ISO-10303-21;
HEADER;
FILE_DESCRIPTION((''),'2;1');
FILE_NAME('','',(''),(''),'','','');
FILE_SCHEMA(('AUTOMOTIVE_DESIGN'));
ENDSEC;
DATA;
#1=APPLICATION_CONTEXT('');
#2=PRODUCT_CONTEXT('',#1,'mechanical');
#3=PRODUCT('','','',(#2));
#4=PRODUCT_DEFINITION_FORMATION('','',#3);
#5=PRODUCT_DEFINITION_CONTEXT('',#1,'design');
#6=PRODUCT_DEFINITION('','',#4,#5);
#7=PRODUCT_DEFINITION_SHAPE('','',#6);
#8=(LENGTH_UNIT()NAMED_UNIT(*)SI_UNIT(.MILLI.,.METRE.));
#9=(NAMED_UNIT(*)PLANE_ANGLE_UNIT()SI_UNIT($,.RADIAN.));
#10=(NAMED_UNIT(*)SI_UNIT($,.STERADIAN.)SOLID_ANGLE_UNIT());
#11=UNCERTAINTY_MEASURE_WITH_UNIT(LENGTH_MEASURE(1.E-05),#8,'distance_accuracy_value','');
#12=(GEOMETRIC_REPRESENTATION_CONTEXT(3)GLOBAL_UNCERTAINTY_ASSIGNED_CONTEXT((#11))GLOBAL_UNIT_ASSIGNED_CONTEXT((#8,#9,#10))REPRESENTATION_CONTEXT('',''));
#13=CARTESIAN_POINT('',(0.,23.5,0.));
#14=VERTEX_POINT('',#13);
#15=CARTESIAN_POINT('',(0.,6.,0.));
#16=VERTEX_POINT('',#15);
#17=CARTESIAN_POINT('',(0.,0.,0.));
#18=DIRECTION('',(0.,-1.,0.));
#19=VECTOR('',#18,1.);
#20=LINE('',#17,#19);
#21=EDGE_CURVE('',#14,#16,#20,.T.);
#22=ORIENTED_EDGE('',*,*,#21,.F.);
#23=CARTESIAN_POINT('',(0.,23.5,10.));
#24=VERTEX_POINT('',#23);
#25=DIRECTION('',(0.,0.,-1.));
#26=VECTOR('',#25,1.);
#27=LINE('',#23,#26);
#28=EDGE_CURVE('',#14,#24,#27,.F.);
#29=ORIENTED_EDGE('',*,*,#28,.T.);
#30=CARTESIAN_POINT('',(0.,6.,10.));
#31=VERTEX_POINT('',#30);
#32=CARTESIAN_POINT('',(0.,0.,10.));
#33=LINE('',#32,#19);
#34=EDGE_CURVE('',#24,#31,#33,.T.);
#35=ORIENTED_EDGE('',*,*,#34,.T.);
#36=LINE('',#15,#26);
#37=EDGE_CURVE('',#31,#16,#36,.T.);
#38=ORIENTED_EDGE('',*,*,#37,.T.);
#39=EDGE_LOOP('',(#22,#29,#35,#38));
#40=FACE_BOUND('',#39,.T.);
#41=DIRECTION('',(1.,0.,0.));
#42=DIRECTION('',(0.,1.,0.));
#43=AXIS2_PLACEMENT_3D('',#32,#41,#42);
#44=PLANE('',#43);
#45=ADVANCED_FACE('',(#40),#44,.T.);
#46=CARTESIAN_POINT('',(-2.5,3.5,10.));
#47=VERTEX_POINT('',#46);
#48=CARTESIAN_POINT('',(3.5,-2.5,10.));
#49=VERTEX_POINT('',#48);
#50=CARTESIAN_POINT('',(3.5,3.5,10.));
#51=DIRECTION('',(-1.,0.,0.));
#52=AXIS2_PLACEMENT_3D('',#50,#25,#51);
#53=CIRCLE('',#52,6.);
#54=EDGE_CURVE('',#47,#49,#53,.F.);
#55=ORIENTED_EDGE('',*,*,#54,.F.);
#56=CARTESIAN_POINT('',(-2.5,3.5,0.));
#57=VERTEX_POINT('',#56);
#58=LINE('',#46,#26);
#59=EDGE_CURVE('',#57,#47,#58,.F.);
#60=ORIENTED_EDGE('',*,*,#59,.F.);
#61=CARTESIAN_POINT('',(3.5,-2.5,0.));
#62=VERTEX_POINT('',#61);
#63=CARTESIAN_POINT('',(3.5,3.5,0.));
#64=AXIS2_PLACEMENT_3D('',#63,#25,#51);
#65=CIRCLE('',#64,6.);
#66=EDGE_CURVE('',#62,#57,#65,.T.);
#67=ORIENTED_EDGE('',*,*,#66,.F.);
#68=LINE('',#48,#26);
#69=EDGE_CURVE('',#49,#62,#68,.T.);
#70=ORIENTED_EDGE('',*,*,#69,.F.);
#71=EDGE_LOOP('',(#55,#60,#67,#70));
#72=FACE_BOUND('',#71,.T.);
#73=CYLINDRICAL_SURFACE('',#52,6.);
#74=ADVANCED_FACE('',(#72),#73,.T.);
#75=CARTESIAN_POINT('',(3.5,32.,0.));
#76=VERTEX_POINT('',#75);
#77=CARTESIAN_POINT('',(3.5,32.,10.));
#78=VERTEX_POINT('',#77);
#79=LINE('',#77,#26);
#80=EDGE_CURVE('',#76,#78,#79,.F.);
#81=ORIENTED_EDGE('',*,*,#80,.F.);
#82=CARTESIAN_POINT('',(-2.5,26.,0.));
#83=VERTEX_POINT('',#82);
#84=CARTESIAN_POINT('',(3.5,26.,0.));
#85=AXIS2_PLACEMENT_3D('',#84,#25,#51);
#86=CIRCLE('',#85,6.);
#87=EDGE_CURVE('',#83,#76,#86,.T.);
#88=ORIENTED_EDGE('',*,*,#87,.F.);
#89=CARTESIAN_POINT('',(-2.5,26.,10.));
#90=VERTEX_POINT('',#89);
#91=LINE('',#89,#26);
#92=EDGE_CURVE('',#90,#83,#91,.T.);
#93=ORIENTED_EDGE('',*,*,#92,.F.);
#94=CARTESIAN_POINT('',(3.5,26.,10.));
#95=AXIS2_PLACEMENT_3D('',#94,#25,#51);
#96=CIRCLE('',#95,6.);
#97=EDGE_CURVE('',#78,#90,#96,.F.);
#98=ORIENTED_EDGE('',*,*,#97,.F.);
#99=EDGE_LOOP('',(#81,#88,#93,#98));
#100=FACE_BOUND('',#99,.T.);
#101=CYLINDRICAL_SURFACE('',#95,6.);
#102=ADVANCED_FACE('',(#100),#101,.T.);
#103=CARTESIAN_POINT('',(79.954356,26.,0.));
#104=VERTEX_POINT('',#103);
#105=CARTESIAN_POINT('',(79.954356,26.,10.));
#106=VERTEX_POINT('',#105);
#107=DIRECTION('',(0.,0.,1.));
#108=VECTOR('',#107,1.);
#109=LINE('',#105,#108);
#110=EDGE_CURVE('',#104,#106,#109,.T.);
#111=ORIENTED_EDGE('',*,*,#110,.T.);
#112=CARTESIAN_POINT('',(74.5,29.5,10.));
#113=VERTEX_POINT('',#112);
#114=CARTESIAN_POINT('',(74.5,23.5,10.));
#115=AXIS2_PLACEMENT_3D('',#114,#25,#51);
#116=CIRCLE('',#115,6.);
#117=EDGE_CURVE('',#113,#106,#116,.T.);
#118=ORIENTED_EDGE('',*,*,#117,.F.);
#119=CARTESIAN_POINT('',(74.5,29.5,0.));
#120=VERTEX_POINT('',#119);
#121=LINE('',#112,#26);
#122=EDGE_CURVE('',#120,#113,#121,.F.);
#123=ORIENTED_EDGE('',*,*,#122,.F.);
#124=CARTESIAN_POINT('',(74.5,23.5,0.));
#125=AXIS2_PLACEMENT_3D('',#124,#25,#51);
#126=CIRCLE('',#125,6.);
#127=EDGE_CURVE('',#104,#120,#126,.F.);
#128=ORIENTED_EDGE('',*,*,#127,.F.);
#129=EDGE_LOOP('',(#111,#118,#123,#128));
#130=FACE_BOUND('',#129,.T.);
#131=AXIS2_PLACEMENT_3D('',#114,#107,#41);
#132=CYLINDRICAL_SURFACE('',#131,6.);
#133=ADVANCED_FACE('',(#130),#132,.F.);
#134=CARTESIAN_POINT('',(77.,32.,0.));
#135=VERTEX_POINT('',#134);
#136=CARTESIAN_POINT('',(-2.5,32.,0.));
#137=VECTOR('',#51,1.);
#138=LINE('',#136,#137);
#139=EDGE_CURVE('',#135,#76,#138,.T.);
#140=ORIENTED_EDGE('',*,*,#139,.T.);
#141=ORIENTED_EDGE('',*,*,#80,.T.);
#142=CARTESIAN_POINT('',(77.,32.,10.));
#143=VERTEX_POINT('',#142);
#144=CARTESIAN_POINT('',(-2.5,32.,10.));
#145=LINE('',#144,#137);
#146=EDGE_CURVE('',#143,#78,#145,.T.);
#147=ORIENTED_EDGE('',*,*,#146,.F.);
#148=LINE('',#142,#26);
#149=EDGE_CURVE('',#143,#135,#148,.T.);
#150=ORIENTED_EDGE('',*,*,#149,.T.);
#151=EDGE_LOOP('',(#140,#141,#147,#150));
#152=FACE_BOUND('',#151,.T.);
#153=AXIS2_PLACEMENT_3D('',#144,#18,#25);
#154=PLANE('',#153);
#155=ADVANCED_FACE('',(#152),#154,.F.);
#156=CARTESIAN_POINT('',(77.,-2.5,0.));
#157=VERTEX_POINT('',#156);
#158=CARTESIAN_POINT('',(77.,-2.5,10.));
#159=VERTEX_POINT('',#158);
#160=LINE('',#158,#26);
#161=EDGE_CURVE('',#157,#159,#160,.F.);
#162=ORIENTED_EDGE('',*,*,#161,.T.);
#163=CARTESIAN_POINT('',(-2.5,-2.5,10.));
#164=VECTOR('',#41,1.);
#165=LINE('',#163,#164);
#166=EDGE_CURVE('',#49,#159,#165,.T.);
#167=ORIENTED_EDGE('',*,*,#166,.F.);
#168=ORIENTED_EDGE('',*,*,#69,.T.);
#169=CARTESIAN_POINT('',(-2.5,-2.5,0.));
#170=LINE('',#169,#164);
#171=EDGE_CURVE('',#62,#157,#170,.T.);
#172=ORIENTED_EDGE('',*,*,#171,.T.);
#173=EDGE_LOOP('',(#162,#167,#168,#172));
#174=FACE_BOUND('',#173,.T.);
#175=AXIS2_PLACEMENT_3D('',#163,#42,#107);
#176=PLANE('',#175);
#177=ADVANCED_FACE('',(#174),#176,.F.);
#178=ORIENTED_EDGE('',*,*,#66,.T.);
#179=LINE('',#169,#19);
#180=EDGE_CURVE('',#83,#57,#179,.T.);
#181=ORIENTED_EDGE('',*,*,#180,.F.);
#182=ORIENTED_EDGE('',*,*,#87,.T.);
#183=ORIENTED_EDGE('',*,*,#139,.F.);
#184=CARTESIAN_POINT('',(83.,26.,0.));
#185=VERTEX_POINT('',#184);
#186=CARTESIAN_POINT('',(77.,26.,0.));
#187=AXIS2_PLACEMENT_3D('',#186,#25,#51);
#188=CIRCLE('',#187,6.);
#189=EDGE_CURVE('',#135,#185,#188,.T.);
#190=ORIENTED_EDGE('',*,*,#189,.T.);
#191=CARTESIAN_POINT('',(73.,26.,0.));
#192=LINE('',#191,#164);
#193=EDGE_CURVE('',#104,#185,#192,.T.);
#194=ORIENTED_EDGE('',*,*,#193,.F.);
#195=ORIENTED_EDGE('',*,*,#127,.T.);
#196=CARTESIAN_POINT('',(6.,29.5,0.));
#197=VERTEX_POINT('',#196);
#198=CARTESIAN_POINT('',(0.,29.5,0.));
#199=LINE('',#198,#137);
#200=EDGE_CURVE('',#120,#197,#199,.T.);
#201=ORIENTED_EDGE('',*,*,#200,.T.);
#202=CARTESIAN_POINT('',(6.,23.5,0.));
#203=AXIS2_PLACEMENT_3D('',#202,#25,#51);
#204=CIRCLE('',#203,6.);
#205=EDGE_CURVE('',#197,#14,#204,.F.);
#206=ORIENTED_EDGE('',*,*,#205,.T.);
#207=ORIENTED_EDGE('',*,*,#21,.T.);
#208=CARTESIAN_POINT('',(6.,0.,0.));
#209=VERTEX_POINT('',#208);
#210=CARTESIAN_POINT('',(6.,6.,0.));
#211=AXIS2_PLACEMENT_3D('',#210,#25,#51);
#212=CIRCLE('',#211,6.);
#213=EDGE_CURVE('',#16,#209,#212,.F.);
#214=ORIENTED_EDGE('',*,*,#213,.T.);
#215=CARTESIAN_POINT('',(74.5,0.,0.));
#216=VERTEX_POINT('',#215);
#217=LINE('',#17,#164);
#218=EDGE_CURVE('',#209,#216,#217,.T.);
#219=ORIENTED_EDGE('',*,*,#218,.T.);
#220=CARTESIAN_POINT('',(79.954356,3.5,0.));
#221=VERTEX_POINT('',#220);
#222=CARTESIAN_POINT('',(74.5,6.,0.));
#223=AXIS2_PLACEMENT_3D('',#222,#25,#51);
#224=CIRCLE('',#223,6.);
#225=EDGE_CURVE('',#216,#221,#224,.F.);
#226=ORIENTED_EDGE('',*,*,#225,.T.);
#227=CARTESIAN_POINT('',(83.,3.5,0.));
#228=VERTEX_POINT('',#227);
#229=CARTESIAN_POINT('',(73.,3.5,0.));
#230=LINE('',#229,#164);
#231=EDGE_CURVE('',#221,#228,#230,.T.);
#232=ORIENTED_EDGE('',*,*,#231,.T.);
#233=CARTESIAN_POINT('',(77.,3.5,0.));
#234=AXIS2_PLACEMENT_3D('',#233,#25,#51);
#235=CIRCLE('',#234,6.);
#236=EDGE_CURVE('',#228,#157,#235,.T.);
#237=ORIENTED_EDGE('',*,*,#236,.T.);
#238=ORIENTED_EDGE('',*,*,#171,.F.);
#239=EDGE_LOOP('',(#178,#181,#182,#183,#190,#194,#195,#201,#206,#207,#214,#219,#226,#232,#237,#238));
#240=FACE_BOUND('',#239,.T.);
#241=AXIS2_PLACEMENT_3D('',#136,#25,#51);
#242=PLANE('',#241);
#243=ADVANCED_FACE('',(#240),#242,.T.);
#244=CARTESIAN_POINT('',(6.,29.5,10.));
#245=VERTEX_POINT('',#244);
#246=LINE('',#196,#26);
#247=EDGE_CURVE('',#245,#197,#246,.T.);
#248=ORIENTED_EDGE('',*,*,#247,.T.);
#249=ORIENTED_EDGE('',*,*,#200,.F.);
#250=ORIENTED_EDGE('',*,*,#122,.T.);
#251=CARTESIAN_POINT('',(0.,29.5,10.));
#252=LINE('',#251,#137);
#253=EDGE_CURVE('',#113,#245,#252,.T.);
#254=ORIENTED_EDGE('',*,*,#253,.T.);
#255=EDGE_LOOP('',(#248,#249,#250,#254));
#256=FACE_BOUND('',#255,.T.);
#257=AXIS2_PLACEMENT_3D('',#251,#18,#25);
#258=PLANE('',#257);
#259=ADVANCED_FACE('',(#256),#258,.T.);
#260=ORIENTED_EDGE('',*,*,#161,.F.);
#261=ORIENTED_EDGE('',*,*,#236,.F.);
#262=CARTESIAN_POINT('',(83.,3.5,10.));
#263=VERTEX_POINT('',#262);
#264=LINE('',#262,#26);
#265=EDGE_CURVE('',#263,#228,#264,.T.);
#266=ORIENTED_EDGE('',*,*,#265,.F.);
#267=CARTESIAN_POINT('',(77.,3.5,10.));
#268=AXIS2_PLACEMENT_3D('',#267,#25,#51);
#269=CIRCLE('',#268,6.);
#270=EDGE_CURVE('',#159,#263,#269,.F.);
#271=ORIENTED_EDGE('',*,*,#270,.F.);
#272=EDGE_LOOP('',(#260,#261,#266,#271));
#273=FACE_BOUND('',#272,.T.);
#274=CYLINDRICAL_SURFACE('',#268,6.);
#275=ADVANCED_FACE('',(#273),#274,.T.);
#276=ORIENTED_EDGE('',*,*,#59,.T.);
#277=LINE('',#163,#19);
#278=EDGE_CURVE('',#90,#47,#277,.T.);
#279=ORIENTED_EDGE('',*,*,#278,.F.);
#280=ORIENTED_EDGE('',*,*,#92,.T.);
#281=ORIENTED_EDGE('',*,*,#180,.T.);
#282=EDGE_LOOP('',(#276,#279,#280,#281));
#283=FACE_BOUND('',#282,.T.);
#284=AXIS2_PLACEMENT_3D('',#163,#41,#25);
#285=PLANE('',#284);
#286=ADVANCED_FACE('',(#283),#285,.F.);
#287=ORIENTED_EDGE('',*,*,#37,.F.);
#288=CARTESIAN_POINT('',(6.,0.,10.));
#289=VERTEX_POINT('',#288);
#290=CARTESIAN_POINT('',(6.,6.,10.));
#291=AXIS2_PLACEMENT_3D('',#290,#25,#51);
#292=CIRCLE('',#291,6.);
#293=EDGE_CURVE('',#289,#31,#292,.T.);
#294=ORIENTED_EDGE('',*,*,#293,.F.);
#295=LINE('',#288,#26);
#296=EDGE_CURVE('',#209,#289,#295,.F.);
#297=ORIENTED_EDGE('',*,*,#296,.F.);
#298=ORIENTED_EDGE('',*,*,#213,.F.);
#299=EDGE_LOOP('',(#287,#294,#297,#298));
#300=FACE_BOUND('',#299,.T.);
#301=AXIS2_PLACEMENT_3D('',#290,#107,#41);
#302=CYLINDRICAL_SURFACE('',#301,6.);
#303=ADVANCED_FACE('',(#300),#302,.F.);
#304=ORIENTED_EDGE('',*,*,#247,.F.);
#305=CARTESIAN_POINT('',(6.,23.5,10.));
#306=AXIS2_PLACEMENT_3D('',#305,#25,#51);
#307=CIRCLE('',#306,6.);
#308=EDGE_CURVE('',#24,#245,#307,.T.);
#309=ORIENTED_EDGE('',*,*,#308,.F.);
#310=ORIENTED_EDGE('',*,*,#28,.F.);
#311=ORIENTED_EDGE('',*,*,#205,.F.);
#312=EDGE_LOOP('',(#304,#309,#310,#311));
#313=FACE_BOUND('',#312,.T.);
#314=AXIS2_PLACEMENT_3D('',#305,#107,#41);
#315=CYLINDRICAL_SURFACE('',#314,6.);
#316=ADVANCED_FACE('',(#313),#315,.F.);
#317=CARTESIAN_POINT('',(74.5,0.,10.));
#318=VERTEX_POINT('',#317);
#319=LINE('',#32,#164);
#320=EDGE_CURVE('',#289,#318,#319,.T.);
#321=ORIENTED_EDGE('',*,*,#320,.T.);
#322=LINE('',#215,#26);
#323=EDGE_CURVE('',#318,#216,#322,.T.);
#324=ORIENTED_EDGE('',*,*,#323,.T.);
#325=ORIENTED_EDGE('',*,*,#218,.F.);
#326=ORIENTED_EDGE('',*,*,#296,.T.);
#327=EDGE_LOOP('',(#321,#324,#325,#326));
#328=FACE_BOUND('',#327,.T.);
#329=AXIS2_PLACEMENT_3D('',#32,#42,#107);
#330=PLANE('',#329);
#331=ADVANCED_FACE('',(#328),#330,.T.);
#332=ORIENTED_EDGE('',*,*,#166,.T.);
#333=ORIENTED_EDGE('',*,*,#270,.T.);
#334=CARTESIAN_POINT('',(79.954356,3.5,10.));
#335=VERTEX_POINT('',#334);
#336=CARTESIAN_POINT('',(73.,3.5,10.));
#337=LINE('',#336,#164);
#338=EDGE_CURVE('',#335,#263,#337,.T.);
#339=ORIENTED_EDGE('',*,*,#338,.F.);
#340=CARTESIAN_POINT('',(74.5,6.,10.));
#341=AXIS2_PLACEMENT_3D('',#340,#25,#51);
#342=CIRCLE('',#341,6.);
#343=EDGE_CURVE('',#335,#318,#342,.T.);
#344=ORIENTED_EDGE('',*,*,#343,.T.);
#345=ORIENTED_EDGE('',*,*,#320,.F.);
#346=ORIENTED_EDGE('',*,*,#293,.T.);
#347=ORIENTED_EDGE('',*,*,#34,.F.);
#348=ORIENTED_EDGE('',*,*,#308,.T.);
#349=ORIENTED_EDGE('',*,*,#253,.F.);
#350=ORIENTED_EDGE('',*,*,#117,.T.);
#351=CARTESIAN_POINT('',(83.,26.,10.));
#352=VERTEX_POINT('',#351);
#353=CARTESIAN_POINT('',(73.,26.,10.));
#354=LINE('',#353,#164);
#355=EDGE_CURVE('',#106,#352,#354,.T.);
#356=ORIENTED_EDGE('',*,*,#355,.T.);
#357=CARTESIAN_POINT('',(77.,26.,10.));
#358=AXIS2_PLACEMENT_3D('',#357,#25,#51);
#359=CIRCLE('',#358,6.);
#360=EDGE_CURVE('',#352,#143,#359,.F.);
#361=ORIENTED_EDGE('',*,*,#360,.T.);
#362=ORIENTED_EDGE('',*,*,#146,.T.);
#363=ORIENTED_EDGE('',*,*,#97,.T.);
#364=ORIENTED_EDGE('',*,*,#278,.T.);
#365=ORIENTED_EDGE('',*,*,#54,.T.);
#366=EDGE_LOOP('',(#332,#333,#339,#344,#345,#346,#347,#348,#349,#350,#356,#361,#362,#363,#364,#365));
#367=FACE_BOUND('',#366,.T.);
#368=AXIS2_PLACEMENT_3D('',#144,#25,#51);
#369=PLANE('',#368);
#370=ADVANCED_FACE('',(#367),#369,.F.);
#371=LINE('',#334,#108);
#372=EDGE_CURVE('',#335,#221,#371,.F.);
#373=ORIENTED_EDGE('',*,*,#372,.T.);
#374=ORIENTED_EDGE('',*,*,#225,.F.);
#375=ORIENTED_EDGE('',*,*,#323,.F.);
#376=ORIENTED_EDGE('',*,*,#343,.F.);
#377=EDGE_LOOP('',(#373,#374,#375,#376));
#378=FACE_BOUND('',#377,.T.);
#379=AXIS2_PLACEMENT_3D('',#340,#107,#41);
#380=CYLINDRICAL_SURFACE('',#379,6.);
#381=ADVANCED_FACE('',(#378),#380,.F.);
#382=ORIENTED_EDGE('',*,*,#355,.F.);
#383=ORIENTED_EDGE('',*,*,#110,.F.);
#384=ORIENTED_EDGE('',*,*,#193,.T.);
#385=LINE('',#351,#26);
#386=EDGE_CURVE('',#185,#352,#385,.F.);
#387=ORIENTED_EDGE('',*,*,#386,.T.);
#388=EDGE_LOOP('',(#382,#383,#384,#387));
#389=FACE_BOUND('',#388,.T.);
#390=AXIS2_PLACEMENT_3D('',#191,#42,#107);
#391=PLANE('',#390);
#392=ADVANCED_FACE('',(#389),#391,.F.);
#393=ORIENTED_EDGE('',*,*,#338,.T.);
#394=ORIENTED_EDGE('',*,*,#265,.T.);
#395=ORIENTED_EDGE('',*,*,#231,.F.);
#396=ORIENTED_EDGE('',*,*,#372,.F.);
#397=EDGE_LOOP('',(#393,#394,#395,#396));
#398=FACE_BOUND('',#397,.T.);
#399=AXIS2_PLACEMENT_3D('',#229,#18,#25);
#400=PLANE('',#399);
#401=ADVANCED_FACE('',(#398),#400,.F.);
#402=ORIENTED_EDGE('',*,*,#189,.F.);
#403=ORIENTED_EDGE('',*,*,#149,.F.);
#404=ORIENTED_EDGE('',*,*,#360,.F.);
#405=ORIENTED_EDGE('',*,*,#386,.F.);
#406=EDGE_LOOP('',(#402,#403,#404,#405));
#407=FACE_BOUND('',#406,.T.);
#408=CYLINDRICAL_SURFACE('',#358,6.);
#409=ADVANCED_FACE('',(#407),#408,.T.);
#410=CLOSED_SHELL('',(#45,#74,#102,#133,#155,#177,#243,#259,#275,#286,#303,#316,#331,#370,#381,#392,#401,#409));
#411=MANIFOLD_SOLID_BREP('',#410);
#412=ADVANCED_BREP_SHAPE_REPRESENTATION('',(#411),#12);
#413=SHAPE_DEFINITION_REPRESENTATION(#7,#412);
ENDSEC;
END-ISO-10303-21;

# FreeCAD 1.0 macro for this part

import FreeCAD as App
import Part
import Sketcher

V = App.Vector


def edges_at(feature, points):
    """Names of the edges that pass closest to the given points."""
    edges = feature.Shape.Edges
    near = lambda p: min(range(len(edges)), key=lambda i: edges[i].distToShape(Part.Vertex(*p))[0])
    return sorted({f"Edge{near(p) + 1}" for p in points})

doc = App.newDocument("Part")
params = doc.addObject("Spreadsheet::Sheet", "Params")
for row, (alias, value) in enumerate([
    ("sketch1_width", "85.5 mm"),
    ("sketch1_width2", "80.5 mm"),
    ("sketch1_height", "34.5 mm"),
    ("sketch1_height2", "29.5 mm"),
    ("pad1_length", "10 mm"),
    ("fillet_radius", "6 mm"),
    ("fillet2_radius", "6 mm"),
    ("sketch2_height", "10 mm"),
    ("sketch2_width", "22.5 mm"),
    ("pocket1_length", "10 mm"),
], start=1):
    params.set(f"A{row}", alias)
    params.set(f"B{row}", "=" + value)
    params.setAlias(f"B{row}", alias)

body = doc.addObject("PartDesign::Body", "Body")

# Sketch on XY plane
sketch1 = doc.addObject("Sketcher::SketchObject", "Sketch")
body.addObject(sketch1)
sketch1.AttachmentSupport = (doc.XY_Plane, [""])
sketch1.MapMode = "FlatFace"
sketch1.addGeometry(Part.LineSegment(V(-2.5, 32, 0), V(-2.5, -2.5, 0)), False)
sketch1.addGeometry(Part.LineSegment(V(-2.5, -2.5, 0), V(83, -2.5, 0)), False)
sketch1.addGeometry(Part.LineSegment(V(83, -2.5, 0), V(83, 32, 0)), False)
sketch1.addGeometry(Part.LineSegment(V(83, 32, 0), V(-2.5, 32, 0)), False)
sketch1.addGeometry(Part.LineSegment(V(80.5, 0, 0), V(0, 0, 0)), False)
sketch1.addGeometry(Part.LineSegment(V(0, 0, 0), V(0, 29.5, 0)), False)
sketch1.addGeometry(Part.LineSegment(V(0, 29.5, 0), V(80.5, 29.5, 0)), False)
sketch1.addGeometry(Part.LineSegment(V(80.5, 29.5, 0), V(80.5, 0, 0)), False)
sketch1.addConstraint(Sketcher.Constraint("Coincident", 0, 2, 1, 1))
sketch1.addConstraint(Sketcher.Constraint("Coincident", 1, 2, 2, 1))
sketch1.addConstraint(Sketcher.Constraint("Coincident", 2, 2, 3, 1))
sketch1.addConstraint(Sketcher.Constraint("Coincident", 3, 2, 0, 1))
sketch1.addConstraint(Sketcher.Constraint("Coincident", 4, 2, 5, 1))
sketch1.addConstraint(Sketcher.Constraint("Coincident", 5, 2, 6, 1))
sketch1.addConstraint(Sketcher.Constraint("Coincident", 6, 2, 7, 1))
sketch1.addConstraint(Sketcher.Constraint("Coincident", 7, 2, 4, 1))
sketch1.addConstraint(Sketcher.Constraint("Vertical", 0))
sketch1.addConstraint(Sketcher.Constraint("Horizontal", 1))
sketch1.addConstraint(Sketcher.Constraint("Vertical", 2))
sketch1.addConstraint(Sketcher.Constraint("Horizontal", 3))
sketch1.addConstraint(Sketcher.Constraint("Horizontal", 4))
sketch1.addConstraint(Sketcher.Constraint("Vertical", 5))
sketch1.addConstraint(Sketcher.Constraint("Horizontal", 6))
sketch1.addConstraint(Sketcher.Constraint("Vertical", 7))
sketch1.addConstraint(Sketcher.Constraint("Coincident", 4, 2, -1, 1))
sketch1.addConstraint(Sketcher.Constraint("DistanceX", 1, 1, 1, 2, 85.5))
sketch1.addConstraint(Sketcher.Constraint("DistanceX", 4, 2, 4, 1, 80.5))
sketch1.addConstraint(Sketcher.Constraint("DistanceY", 0, 2, 0, 1, 34.5))
sketch1.addConstraint(Sketcher.Constraint("DistanceY", 5, 1, 5, 2, 29.5))
sketch1.addConstraint(Sketcher.Constraint("DistanceX", -1, 1, 1, 2, 83.0))
sketch1.addConstraint(Sketcher.Constraint("DistanceY", -1, 1, 2, 2, 32.0))
sketch1.setExpression("Constraints[17]", "Params.sketch1_width")
sketch1.setExpression("Constraints[18]", "Params.sketch1_width2")
sketch1.setExpression("Constraints[19]", "Params.sketch1_height")
sketch1.setExpression("Constraints[20]", "Params.sketch1_height2")
pad1 = doc.addObject("PartDesign::Pad", "Pad")
body.addObject(pad1)
pad1.Profile = sketch1
pad1.setExpression("Length", "Params.pad1_length")
doc.recompute()

fillet = doc.addObject("PartDesign::Fillet", "Fillet")
body.addObject(fillet)
fillet.Base = (pad1, edges_at(pad1, [
    (0, 29.5, 5),
    (0, 0, 5),
    (80.5, 0, 5),
    (80.5, 29.5, 5),
]))
fillet.setExpression("Radius", "Params.fillet_radius")
doc.recompute()

fillet2 = doc.addObject("PartDesign::Fillet", "Fillet001")
body.addObject(fillet2)
fillet2.Base = (fillet, edges_at(fillet, [
    (-2.5, 32, 5),
    (83, 32, 5),
    (83, -2.5, 5),
    (-2.5, -2.5, 5),
]))
fillet2.setExpression("Radius", "Params.fillet2_radius")

# Sketch on YZ plane
sketch2 = doc.addObject("Sketcher::SketchObject", "Sketch001")
body.addObject(sketch2)
sketch2.AttachmentSupport = (doc.YZ_Plane, [""])
sketch2.MapMode = "FlatFace"
sketch2.AttachmentOffset = App.Placement(V(0, 0, 83), App.Rotation())
sketch2.addGeometry(Part.LineSegment(V(26, 10, 0), V(3.5, 10, 0)), False)
sketch2.addGeometry(Part.LineSegment(V(3.5, 10, 0), V(3.5, 0, 0)), False)
sketch2.addGeometry(Part.LineSegment(V(3.5, 0, 0), V(26, 0, 0)), False)
sketch2.addGeometry(Part.LineSegment(V(26, 0, 0), V(26, 10, 0)), False)
sketch2.addConstraint(Sketcher.Constraint("Coincident", 0, 2, 1, 1))
sketch2.addConstraint(Sketcher.Constraint("Coincident", 1, 2, 2, 1))
sketch2.addConstraint(Sketcher.Constraint("Coincident", 2, 2, 3, 1))
sketch2.addConstraint(Sketcher.Constraint("Coincident", 3, 2, 0, 1))
sketch2.addConstraint(Sketcher.Constraint("Horizontal", 0))
sketch2.addConstraint(Sketcher.Constraint("Vertical", 1))
sketch2.addConstraint(Sketcher.Constraint("Horizontal", 2))
sketch2.addConstraint(Sketcher.Constraint("Vertical", 3))
sketch2.addConstraint(Sketcher.Constraint("PointOnObject", 1, 2, -1))
sketch2.addConstraint(Sketcher.Constraint("DistanceY", 1, 2, 1, 1, 10.0))
sketch2.addConstraint(Sketcher.Constraint("DistanceX", 0, 2, 0, 1, 22.5))
sketch2.addConstraint(Sketcher.Constraint("DistanceX", -1, 1, 2, 2, 26.0))
sketch2.setExpression("Constraints[9]", "Params.sketch2_height")
sketch2.setExpression("Constraints[10]", "Params.sketch2_width")
pocket1 = doc.addObject("PartDesign::Pocket", "Pocket")
body.addObject(pocket1)
pocket1.Profile = sketch2
pocket1.setExpression("Length", "Params.pocket1_length")

doc.recompute()
